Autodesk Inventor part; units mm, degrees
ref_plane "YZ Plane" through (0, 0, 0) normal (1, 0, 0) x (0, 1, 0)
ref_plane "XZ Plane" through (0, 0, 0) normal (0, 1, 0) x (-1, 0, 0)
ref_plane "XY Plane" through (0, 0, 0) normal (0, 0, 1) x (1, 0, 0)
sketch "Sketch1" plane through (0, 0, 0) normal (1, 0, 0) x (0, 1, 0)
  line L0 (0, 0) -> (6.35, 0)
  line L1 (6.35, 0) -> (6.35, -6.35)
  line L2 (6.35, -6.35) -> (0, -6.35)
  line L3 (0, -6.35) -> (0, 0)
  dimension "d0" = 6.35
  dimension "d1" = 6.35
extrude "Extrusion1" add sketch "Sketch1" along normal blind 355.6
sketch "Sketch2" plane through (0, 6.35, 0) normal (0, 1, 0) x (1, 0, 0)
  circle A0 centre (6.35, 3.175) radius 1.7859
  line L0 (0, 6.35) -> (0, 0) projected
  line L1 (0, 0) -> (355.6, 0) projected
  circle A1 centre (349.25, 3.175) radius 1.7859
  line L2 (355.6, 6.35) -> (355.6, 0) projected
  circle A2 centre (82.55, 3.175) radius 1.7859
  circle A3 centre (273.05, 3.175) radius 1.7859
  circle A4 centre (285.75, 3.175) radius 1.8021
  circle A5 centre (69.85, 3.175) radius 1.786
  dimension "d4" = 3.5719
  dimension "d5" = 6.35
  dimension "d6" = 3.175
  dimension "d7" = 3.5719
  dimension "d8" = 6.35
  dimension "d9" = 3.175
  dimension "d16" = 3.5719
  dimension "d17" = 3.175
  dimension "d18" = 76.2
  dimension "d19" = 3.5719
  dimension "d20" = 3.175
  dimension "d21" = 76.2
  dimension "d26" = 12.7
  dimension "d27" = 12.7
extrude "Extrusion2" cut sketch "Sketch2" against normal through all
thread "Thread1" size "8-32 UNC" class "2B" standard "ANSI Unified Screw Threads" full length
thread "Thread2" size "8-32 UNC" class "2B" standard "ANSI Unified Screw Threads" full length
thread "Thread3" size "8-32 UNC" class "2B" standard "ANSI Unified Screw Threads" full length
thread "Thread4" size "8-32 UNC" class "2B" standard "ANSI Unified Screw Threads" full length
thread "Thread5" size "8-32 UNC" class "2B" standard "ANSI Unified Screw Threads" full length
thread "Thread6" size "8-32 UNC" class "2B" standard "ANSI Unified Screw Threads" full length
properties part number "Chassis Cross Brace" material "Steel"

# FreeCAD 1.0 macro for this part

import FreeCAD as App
import Part
import Sketcher
Q = App.Units.Quantity


def add_polygon(sketch, points):
    """Adds a closed chain of lines whose ends are joined by coincident constraints."""
    first, n = sketch.GeometryCount, len(points)
    for a, b in zip(points, points[1:] + points[:1]):
        sketch.addGeometry(Part.LineSegment(App.Vector(*a, 0), App.Vector(*b, 0)), False)
    for i in range(n):
        sketch.addConstraint(Sketcher.Constraint("Coincident", first + i, 2, first + (i + 1) % n, 1))

doc = App.newDocument("Part")
params = doc.addObject("Spreadsheet::Sheet", "Params")
for row, (alias, value) in enumerate([
    ("sketch1_width", "0.25 in"),
    ("pad1_length", "14 in"),
    ("sketch2_diameter", "0.140622 in"),
], start=1):
    params.set(f"A{row}", alias)
    params.set(f"B{row}", "=" + value)
    params.setAlias(f"B{row}", alias)

body = doc.addObject("PartDesign::Body", "Body")

# Sketch on YZ plane
sketch1 = body.newObject("Sketcher::SketchObject", "Sketch")
sketch1.AttachmentSupport = (doc.getObject("YZ_Plane"), [""])
sketch1.MapMode = "FlatFace"
add_polygon(sketch1, [(6, 0), (0, 0), (0, -6), (6, -6)])  # lines 0-3
sketch1.addConstraint([
    Sketcher.Constraint("Horizontal", 0),
    Sketcher.Constraint("Vertical", 1),
    Sketcher.Constraint("Horizontal", 2),
    Sketcher.Constraint("Vertical", 3),
    Sketcher.Constraint("Coincident", 0, 2, -1, 1),
    Sketcher.Constraint("Equal", 2, 1),
    Sketcher.Constraint("DistanceX", 0, 2, 0, 1, Q("0.25 in")),
])
sketch1.setExpression("Constraints[10]", "Params.sketch1_width")
pad1 = body.newObject("PartDesign::Pad", "Pad")
pad1.Profile = sketch1
pad1.setExpression("Length", "Params.pad1_length")

# Sketch on XZ plane
sketch2 = body.newObject("Sketcher::SketchObject", "Sketch001")
sketch2.AttachmentSupport = (doc.getObject("XZ_Plane"), [""])
sketch2.MapMode = "FlatFace"
sketch2.AttachmentOffset = App.Placement(App.Vector(0, 0, -0.25 * 25.4), App.Rotation())
sketch2.addGeometry([
    Part.Circle(App.Vector(6.3, -3.2, 0), App.Vector(0, 0, 1), 1.8),  # 0
    Part.Circle(App.Vector(349.2, -3.2, 0), App.Vector(0, 0, 1), 1.8),  # 1
    Part.Circle(App.Vector(82.5, -3.2, 0), App.Vector(0, 0, 1), 1.8),  # 2
    Part.Circle(App.Vector(273.1, -3.2, 0), App.Vector(0, 0, 1), 1.8),  # 3
    Part.Circle(App.Vector(285.8, -3.2, 0), App.Vector(0, 0, 1), 1.8),  # 4
    Part.Circle(App.Vector(69.8, -3.2, 0), App.Vector(0, 0, 1), 1.8),  # 5
], False)
sketch2.addConstraint([
    Sketcher.Constraint("Equal", 0, 1),
    Sketcher.Constraint("Equal", 1, 2),
    Sketcher.Constraint("Equal", 2, 3),
    Sketcher.Constraint("Equal", 3, 5),
    Sketcher.Constraint("Horizontal", 0, 3, 1, 3),
    Sketcher.Constraint("Horizontal", 1, 3, 2, 3),
    Sketcher.Constraint("Horizontal", 2, 3, 3, 3),
    Sketcher.Constraint("Horizontal", 3, 3, 4, 3),
    Sketcher.Constraint("Horizontal", 4, 3, 5, 3),
    Sketcher.Constraint("Diameter", 0, Q("0.140622 in")),
    Sketcher.Constraint("DistanceX", 0, 3, 2, 3, Q("3 in")),
    Sketcher.Constraint("DistanceX", 3, 3, 1, 3, Q("3 in")),
    Sketcher.Constraint("DistanceX", 3, 3, 4, 3, Q("0.5 in")),
    Sketcher.Constraint("DistanceX", 5, 3, 2, 3, Q("0.5 in")),
    Sketcher.Constraint("DistanceX", -1, 1, 0, 3, Q("0.25 in")),
    Sketcher.Constraint("DistanceY", 0, 3, -1, 1, Q("0.125 in")),
    Sketcher.Constraint("DistanceX", 2, 3, 4, 3, Q("8 in")),
    Sketcher.Constraint("Diameter", 4, Q("0.1419 in")),
])
sketch2.setExpression("Constraints[9]", "Params.sketch2_diameter")
pocket1 = body.newObject("PartDesign::Pocket", "Pocket")
pocket1.Profile = sketch2
pocket1.Type = "ThroughAll"
pocket1.Reversed = True

doc.recompute()
